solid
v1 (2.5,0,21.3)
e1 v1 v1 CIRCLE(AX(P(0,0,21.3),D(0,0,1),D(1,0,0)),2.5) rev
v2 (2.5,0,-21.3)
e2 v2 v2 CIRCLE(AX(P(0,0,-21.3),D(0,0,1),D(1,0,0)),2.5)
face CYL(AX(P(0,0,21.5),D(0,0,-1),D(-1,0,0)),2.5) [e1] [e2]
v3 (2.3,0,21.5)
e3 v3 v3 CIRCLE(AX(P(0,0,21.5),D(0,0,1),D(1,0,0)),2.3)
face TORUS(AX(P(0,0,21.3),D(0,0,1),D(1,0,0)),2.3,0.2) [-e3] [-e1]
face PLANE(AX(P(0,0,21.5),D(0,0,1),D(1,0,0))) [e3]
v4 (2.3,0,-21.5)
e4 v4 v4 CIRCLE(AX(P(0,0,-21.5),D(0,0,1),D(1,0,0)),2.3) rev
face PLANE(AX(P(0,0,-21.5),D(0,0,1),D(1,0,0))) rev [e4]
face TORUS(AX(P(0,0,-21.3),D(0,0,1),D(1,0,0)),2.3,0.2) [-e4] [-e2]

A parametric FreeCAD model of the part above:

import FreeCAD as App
import Part
import Sketcher

V = App.Vector


def edges_at(feature, points):
    """Names of the edges that pass closest to the given points."""
    edges = feature.Shape.Edges
    near = lambda p: min(range(len(edges)), key=lambda i: edges[i].distToShape(Part.Vertex(*p))[0])
    return sorted({f"Edge{near(p) + 1}" for p in points})

doc = App.newDocument("Part")
body = doc.addObject("PartDesign::Body", "Body")

# Sketch on XY plane
sketch1 = body.newObject("Sketcher::SketchObject", "Sketch")
sketch1.AttachmentSupport = (doc.getObject("XY_Plane"), [""])
sketch1.MapMode = "FlatFace"
sketch1.addGeometry(Part.Circle(V(0, 0, 0), V(0, 0, 1), 2.5), False)
sketch1.addConstraint([
    Sketcher.Constraint("Coincident", 0, 3, -1, 1),
    Sketcher.Constraint("Diameter", 0, 5.0),
])
pad1 = body.newObject("PartDesign::Pad", "Pad")
pad1.Profile = sketch1
pad1.Length = 43
pad1.Midplane = True
doc.recompute()

fillet = body.newObject("PartDesign::Fillet", "Fillet")
fillet.Base = (pad1, edges_at(pad1, [(-2.5, 0, -21.5), (-2.5, 0, 21.5)]))
fillet.Radius = 0.2

doc.recompute()
